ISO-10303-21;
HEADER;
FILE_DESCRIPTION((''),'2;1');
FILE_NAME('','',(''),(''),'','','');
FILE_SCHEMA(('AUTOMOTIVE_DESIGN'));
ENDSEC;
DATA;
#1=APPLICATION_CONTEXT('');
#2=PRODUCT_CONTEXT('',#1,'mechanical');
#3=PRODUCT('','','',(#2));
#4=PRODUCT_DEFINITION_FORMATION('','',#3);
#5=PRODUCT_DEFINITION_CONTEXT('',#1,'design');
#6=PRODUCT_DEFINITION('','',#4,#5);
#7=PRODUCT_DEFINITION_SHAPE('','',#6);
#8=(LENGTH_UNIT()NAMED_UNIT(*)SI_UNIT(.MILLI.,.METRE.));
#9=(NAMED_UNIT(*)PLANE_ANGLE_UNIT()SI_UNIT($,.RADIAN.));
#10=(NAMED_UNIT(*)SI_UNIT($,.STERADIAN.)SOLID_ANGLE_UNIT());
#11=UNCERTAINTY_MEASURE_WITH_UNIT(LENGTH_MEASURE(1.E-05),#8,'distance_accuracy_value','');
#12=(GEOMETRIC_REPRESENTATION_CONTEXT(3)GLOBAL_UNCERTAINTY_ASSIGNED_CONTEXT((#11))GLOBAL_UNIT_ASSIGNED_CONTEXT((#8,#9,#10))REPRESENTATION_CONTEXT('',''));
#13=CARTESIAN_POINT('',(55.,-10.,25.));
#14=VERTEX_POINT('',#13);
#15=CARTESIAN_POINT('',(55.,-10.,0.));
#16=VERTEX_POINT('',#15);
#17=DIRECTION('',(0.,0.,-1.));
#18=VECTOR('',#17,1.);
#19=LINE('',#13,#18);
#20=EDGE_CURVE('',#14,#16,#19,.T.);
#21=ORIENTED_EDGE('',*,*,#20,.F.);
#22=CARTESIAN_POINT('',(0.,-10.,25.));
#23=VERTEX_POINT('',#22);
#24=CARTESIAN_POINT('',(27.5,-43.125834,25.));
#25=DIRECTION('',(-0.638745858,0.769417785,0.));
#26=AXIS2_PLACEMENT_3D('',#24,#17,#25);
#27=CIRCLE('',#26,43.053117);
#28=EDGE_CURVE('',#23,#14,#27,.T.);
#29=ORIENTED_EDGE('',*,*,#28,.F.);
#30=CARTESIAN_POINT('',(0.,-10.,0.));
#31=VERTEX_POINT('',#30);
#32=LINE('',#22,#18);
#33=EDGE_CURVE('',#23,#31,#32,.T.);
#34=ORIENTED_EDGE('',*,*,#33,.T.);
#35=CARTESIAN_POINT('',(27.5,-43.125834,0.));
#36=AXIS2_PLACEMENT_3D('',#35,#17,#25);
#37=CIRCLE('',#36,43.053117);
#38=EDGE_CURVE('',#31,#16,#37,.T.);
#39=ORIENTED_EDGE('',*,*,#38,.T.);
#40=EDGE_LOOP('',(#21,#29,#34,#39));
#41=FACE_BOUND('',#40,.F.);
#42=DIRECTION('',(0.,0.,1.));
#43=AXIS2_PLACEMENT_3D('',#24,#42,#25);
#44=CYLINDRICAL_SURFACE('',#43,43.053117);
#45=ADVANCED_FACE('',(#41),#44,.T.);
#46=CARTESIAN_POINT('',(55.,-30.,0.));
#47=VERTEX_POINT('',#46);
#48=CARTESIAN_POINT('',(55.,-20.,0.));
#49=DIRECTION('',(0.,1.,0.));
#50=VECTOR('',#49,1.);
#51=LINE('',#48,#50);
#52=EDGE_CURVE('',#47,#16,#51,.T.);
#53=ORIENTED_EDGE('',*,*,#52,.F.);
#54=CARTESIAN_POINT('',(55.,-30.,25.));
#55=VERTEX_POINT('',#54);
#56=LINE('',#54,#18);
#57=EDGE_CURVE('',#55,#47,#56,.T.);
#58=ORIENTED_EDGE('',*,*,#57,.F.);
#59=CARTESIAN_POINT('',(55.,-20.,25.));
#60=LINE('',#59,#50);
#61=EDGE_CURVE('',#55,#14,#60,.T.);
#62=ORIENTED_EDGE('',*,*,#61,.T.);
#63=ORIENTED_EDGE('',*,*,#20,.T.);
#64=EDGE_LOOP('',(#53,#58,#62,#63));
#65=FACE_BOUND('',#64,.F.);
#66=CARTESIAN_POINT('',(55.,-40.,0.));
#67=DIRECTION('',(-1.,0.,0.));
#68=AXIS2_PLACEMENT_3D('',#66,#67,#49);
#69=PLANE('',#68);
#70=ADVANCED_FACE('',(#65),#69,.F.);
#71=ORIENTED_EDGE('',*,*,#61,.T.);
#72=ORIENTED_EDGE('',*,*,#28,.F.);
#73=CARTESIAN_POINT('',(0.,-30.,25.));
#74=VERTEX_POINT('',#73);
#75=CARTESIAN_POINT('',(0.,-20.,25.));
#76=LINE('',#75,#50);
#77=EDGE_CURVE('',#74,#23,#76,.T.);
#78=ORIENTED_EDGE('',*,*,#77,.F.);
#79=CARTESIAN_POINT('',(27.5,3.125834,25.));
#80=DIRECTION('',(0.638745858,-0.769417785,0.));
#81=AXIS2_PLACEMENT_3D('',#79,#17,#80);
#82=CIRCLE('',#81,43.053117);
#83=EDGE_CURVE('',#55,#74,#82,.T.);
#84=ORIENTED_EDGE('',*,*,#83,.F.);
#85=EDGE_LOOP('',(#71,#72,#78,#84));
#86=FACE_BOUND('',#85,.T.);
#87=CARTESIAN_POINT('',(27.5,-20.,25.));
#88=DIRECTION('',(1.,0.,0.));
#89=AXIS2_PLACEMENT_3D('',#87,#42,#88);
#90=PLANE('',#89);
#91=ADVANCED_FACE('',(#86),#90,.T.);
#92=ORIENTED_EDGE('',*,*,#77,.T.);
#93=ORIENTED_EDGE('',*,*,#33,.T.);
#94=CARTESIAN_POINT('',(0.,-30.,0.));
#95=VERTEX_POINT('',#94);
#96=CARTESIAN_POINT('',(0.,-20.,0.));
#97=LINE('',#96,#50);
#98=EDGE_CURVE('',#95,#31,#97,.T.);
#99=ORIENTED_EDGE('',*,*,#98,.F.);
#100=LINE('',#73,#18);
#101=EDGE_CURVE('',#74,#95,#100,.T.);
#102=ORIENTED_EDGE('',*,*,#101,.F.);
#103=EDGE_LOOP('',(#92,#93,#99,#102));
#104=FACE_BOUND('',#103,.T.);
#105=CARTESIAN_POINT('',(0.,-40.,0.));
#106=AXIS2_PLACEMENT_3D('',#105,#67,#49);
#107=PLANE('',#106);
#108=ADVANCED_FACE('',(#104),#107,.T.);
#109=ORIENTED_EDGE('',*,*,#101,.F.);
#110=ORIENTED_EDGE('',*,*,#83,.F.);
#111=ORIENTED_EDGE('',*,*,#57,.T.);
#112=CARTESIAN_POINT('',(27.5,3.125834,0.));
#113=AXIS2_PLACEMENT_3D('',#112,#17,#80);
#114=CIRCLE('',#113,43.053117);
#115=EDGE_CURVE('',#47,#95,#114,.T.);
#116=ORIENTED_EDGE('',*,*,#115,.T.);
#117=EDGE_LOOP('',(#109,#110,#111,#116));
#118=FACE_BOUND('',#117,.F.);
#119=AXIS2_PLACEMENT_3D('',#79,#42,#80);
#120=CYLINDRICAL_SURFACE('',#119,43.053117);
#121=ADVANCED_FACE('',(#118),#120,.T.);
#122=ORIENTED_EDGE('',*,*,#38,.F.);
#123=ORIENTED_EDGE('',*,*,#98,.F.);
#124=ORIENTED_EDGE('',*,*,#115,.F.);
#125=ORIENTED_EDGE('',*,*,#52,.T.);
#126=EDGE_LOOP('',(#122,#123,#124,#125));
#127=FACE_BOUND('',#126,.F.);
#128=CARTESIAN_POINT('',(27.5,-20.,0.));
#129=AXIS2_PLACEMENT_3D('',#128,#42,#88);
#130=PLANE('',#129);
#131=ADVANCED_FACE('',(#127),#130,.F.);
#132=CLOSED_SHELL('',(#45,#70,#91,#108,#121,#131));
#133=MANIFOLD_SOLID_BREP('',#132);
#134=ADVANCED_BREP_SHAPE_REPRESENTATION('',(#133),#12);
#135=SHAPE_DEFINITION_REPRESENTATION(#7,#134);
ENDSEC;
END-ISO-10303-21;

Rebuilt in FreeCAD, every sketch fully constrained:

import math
import FreeCAD as App
import Part
import Sketcher

V = App.Vector

doc = App.newDocument("Part")
body = doc.addObject("PartDesign::Body", "Body")

# Sketch on XY plane
sketch1 = body.newObject("Sketcher::SketchObject", "Sketch")
sketch1.AttachmentSupport = (doc.getObject("XY_Plane"), [""])
sketch1.MapMode = "FlatFace"
sketch1.addGeometry(Part.LineSegment(V(0, 0, 0), V(0, -40, 0)), False)
sketch1.addGeometry(Part.LineSegment(V(0, -40, 0), V(55, -40, 0)), False)
sketch1.addGeometry(Part.LineSegment(V(55, -40, 0), V(55, 0, 0)), False)
sketch1.addGeometry(Part.LineSegment(V(55, 0, 0), V(0, 0, 0)), False)
sketch1.addConstraint(Sketcher.Constraint("Coincident", 0, 2, 1, 1))
sketch1.addConstraint(Sketcher.Constraint("Coincident", 1, 2, 2, 1))
sketch1.addConstraint(Sketcher.Constraint("Coincident", 2, 2, 3, 1))
sketch1.addConstraint(Sketcher.Constraint("Coincident", 3, 2, 0, 1))
sketch1.addConstraint(Sketcher.Constraint("Vertical", 0))
sketch1.addConstraint(Sketcher.Constraint("Horizontal", 1))
sketch1.addConstraint(Sketcher.Constraint("Vertical", 2))
sketch1.addConstraint(Sketcher.Constraint("Horizontal", 3))
sketch1.addConstraint(Sketcher.Constraint("Coincident", 3, 2, -1, 1))
sketch1.addConstraint(Sketcher.Constraint("DistanceX", 1, 1, 1, 2, 55.0))
sketch1.addConstraint(Sketcher.Constraint("DistanceY", 0, 2, 0, 1, 40.0))
pad1 = body.newObject("PartDesign::Pad", "Pad")
pad1.Profile = sketch1
pad1.Length = 25

# Sketch on XY plane
sketch2 = body.newObject("Sketcher::SketchObject", "Sketch001")
sketch2.AttachmentSupport = (doc.getObject("XY_Plane"), [""])
sketch2.MapMode = "FlatFace"
sketch2.AttachmentOffset = App.Placement(V(0, 0, 25), App.Rotation())
sketch2.addGeometry(Part.LineSegment(V(55, 0, 0), V(0, 0, 0)), False)
sketch2.addGeometry(Part.LineSegment(V(0, 0, 0), V(0, -10, 0)), False)
sketch2.addGeometry(Part.ArcOfCircle(Part.Circle(V(28, -43, 0), V(0, 0, 1), 43), math.radians(50), math.radians(130)), False)
sketch2.addGeometry(Part.LineSegment(V(55, -10, 0), V(55, 0, 0)), False)
sketch2.addGeometry(Part.ArcOfCircle(Part.Circle(V(28, 3, 0), V(0, 0, 1), 43), math.radians(-130), math.radians(-50)), False)
sketch2.addGeometry(Part.LineSegment(V(0, -30, 0), V(0, -40, 0)), False)
sketch2.addGeometry(Part.LineSegment(V(0, -40, 0), V(55, -40, 0)), False)
sketch2.addGeometry(Part.LineSegment(V(55, -40, 0), V(55, -30, 0)), False)
sketch2.addConstraint(Sketcher.Constraint("Coincident", 0, 2, 1, 1))
sketch2.addConstraint(Sketcher.Constraint("Coincident", 1, 2, 2, 2))
sketch2.addConstraint(Sketcher.Constraint("Coincident", 2, 1, 3, 1))
sketch2.addConstraint(Sketcher.Constraint("Coincident", 3, 2, 0, 1))
sketch2.addConstraint(Sketcher.Constraint("Coincident", 4, 1, 5, 1))
sketch2.addConstraint(Sketcher.Constraint("Coincident", 5, 2, 6, 1))
sketch2.addConstraint(Sketcher.Constraint("Coincident", 6, 2, 7, 1))
sketch2.addConstraint(Sketcher.Constraint("Coincident", 7, 2, 4, 2))
sketch2.addConstraint(Sketcher.Constraint("Horizontal", 0))
sketch2.addConstraint(Sketcher.Constraint("Vertical", 1))
sketch2.addConstraint(Sketcher.Constraint("Vertical", 3))
sketch2.addConstraint(Sketcher.Constraint("Vertical", 5))
sketch2.addConstraint(Sketcher.Constraint("Horizontal", 6))
sketch2.addConstraint(Sketcher.Constraint("Vertical", 7))
sketch2.addConstraint(Sketcher.Constraint("Coincident", 0, 2, -1, 1))
sketch2.addConstraint(Sketcher.Constraint("Equal", 2, 4))
sketch2.addConstraint(Sketcher.Constraint("PointOnObject", 4, 1, -2))
sketch2.addConstraint(Sketcher.Constraint("Horizontal", 1, 2, 2, 1))
sketch2.addConstraint(Sketcher.Constraint("Horizontal", 4, 1, 7, 2))
sketch2.addConstraint(Sketcher.Constraint("Vertical", 2, 3, 4, 3))
sketch2.addConstraint(Sketcher.Constraint("Equal", 3, 5))
sketch2.addConstraint(Sketcher.Constraint("DistanceX", 0, 2, 0, 1, 55.0))
sketch2.addConstraint(Sketcher.Constraint("DistanceY", 1, 2, 1, 1, 10.0))
sketch2.addConstraint(Sketcher.Constraint("DistanceY", 4, 1, -1, 1, 30.0))
sketch2.addConstraint(Sketcher.Constraint("Radius", 2, 43.053117))
pocket1 = body.newObject("PartDesign::Pocket", "Pocket")
pocket1.Profile = sketch2
pocket1.Length = 25

doc.recompute()
